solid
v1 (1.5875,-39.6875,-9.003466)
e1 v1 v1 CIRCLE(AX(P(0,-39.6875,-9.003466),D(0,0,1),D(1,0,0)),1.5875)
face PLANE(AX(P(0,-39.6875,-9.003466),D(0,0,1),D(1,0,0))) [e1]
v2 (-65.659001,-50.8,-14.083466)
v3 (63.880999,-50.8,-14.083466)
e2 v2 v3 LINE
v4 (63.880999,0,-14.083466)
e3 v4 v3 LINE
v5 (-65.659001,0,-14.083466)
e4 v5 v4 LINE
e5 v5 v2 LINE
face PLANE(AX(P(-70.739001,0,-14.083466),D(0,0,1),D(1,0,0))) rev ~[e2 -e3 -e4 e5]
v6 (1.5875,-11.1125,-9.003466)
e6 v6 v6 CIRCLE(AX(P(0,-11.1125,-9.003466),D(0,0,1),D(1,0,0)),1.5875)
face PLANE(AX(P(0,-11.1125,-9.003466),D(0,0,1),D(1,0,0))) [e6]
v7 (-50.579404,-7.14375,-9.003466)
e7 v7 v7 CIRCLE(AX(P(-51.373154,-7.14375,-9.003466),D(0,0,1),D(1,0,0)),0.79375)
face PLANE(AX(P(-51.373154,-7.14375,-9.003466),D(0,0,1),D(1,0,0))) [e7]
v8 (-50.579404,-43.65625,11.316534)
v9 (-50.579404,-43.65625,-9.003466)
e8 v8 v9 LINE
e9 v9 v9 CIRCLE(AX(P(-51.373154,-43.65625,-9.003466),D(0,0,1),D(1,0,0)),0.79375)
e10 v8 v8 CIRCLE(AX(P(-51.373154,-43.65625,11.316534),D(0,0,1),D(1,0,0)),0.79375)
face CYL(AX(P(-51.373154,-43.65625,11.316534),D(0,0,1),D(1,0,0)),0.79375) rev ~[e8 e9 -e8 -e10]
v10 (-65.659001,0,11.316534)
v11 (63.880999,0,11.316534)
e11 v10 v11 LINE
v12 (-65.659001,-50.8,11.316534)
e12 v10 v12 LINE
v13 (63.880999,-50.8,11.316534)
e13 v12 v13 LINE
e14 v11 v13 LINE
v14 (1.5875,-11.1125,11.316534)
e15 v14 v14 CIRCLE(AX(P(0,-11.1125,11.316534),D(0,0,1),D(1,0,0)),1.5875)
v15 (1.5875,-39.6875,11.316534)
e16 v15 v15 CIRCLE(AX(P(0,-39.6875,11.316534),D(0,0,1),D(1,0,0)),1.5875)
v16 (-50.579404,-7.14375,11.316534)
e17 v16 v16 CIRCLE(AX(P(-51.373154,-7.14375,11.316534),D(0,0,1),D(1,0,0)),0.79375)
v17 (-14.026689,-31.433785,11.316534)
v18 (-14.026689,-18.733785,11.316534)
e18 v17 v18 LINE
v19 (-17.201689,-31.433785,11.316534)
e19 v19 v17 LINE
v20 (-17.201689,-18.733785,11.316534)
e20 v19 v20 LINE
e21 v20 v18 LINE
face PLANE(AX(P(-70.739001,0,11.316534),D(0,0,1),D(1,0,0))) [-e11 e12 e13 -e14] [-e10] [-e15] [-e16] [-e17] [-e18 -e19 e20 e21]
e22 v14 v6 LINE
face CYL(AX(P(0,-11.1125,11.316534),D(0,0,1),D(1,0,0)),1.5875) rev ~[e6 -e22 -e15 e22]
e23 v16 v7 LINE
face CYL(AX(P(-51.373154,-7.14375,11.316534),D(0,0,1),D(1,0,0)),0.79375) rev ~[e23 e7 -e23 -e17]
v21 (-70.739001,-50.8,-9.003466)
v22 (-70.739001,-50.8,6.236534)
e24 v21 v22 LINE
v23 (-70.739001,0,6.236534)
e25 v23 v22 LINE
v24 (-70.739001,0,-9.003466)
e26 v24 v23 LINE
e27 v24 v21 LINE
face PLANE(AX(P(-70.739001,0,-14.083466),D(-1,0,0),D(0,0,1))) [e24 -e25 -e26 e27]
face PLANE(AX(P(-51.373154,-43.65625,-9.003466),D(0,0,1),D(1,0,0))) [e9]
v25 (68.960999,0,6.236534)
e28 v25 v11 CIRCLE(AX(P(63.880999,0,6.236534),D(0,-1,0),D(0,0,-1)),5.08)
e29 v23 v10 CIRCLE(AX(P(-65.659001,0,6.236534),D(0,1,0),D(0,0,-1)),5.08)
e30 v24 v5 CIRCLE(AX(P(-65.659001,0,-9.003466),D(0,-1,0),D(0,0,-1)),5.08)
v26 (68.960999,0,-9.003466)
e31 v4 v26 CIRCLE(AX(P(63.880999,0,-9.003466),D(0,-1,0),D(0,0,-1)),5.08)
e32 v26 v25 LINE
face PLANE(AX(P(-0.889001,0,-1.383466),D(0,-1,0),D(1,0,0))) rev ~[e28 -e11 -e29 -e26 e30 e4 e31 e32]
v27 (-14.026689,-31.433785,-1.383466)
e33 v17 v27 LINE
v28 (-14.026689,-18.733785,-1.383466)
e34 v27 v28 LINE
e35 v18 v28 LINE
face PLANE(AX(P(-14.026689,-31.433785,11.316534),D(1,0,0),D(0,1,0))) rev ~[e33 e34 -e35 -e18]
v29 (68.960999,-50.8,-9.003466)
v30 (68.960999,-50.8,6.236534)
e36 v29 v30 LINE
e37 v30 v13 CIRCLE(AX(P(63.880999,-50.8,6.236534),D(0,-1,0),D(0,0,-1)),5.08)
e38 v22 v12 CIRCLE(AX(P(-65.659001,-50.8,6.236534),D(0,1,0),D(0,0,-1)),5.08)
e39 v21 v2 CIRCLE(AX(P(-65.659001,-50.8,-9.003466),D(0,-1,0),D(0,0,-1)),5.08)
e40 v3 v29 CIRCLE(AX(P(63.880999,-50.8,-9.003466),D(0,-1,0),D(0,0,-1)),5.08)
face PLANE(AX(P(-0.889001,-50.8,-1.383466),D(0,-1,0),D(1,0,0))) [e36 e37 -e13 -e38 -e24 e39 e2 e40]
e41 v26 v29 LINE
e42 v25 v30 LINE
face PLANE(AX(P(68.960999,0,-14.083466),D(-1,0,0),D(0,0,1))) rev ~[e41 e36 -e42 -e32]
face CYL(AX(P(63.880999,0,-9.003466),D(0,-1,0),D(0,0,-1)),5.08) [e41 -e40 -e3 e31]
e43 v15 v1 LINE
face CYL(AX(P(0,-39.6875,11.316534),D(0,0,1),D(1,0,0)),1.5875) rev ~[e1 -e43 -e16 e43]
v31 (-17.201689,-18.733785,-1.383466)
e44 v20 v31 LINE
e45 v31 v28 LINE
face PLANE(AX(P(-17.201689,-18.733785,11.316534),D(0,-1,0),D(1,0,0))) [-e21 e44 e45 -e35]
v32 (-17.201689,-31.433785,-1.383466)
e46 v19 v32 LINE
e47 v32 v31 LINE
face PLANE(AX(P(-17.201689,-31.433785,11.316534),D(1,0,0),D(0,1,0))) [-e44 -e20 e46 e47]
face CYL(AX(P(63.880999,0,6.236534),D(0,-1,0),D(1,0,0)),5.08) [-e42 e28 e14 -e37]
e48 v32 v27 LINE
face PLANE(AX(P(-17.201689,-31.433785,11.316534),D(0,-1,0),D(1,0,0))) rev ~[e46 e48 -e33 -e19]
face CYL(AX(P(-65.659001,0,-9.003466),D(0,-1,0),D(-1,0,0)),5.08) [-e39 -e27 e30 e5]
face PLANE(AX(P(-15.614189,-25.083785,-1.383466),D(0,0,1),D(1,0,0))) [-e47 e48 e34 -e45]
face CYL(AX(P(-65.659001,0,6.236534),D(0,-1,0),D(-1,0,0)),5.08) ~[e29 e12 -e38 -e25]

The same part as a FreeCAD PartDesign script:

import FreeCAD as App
import Part
import Sketcher
from FreeCAD import Vector
Q = App.Units.Quantity


def edges_at(feature, points):
    """Names of the edges that pass closest to the given points."""
    edges = feature.Shape.Edges
    near = lambda p: min(range(len(edges)), key=lambda i: edges[i].distToShape(Part.Vertex(*p))[0])
    return sorted({f"Edge{near(p) + 1}" for p in points})


def add_polygon(sketch, points):
    """Adds a closed chain of lines whose ends are joined by coincident constraints."""
    first, n = sketch.GeometryCount, len(points)
    for a, b in zip(points, points[1:] + points[:1]):
        sketch.addGeometry(Part.LineSegment(App.Vector(*a, 0), App.Vector(*b, 0)), False)
    for i in range(n):
        sketch.addConstraint(Sketcher.Constraint("Coincident", first + i, 2, first + (i + 1) % n, 1))

doc = App.newDocument("Part")
params = doc.addObject("Spreadsheet::Sheet", "Params")
for row, (alias, value) in enumerate([
    ("sketch1_height", "1 in"),
    ("sketch1_width", "5.5 in"),
    ("pad1_length", "2 in"),
    ("fillet_radius", "0.2 in"),
    ("sketch2_diameter", "0.0625 in"),
    ("pocket1_length", "0.8 in"),
    ("sketch3_height", "0.5 in"),
    ("sketch3_width", "0.125 in"),
    ("pocket2_length", "0.5 in"),
    ("sketch4_diameter", "0.125 in"),
    ("pocket3_length", "0.8 in"),
], start=1):
    params.set(f"A{row}", alias)
    params.set(f"B{row}", "=" + value)
    params.setAlias(f"B{row}", alias)

body = doc.addObject("PartDesign::Body", "Body")

# Sketch on XZ plane
sketch1 = body.newObject("Sketcher::SketchObject", "Sketch")
sketch1.AttachmentSupport = (doc.getObject("XZ_Plane"), [""])
sketch1.MapMode = "FlatFace"
add_polygon(sketch1, [(-71, 11), (-71, -14), (69, -14), (69, 11)])  # lines 0-3
sketch1.addConstraint(Sketcher.Constraint("Vertical", 0))
sketch1.addConstraint(Sketcher.Constraint("Horizontal", 1))
sketch1.addConstraint(Sketcher.Constraint("Vertical", 2))
sketch1.addConstraint(Sketcher.Constraint("Horizontal", 3))
sketch1.addConstraint(Sketcher.Constraint("DistanceY", 0, 2, 0, 1, Q("1 in")))
sketch1.addConstraint(Sketcher.Constraint("DistanceX", 1, 1, 1, 2, Q("5.5 in")))
sketch1.addConstraint(Sketcher.Constraint("DistanceX", 0, 2, -1, 1, Q("2.785 in")))
sketch1.addConstraint(Sketcher.Constraint("DistanceY", 0, 2, -1, 1, 14.083466))
sketch1.setExpression("Constraints[8]", "Params.sketch1_height")
sketch1.setExpression("Constraints[9]", "Params.sketch1_width")
pad1 = body.newObject("PartDesign::Pad", "Pad")
pad1.Profile = sketch1
pad1.setExpression("Length", "Params.pad1_length")
doc.recompute()

fillet = body.newObject("PartDesign::Fillet", "Fillet")
fillet.Base = (pad1, edges_at(pad1, [
    (-70.739, -25.4, 11.317),
    (-70.739, -25.4, -14.083),
    (68.961, -25.4, 11.317),
    (68.961, -25.4, -14.083),
]))
fillet.setExpression("Radius", "Params.fillet_radius")

# Sketch on XY plane
sketch2 = body.newObject("Sketcher::SketchObject", "Sketch001")
sketch2.AttachmentSupport = (doc.getObject("XY_Plane"), [""])
sketch2.MapMode = "FlatFace"
sketch2.AttachmentOffset = App.Placement(Vector(0, 0, 11.316534), App.Rotation())
sketch2.addGeometry(Part.Circle(Vector(-51.4, -7.1, 0), Vector(0, 0, 1), 0.8), False)
sketch2.addGeometry(Part.Circle(Vector(-51.4, -43.7, 0), Vector(0, 0, 1), 0.8), False)
sketch2.addConstraint(Sketcher.Constraint("Equal", 0, 1))
sketch2.addConstraint(Sketcher.Constraint("Vertical", 0, 3, 1, 3))
sketch2.addConstraint(Sketcher.Constraint("Diameter", 0, Q("0.0625 in")))
sketch2.addConstraint(Sketcher.Constraint("DistanceY", 0, 3, -1, 1, Q("0.28125 in")))
sketch2.addConstraint(Sketcher.Constraint("DistanceY", 1, 3, -1, 1, Q("1.71875 in")))
sketch2.addConstraint(Sketcher.Constraint("DistanceX", 0, 3, -1, 1, 51.373154))
sketch2.setExpression("Constraints[2]", "Params.sketch2_diameter")
pocket1 = body.newObject("PartDesign::Pocket", "Pocket")
pocket1.Profile = sketch2
pocket1.setExpression("Length", "Params.pocket1_length")

# Sketch on XY plane
sketch3 = body.newObject("Sketcher::SketchObject", "Sketch002")
sketch3.AttachmentSupport = (doc.getObject("XY_Plane"), [""])
sketch3.MapMode = "FlatFace"
sketch3.AttachmentOffset = App.Placement(Vector(0, 0, 11.316534), App.Rotation())
add_polygon(sketch3, [(-17.2, -18.7), (-17.2, -31.4), (-14, -31.4), (-14, -18.7)])  # lines 0-3
sketch3.addConstraint(Sketcher.Constraint("Vertical", 0))
sketch3.addConstraint(Sketcher.Constraint("Horizontal", 1))
sketch3.addConstraint(Sketcher.Constraint("Vertical", 2))
sketch3.addConstraint(Sketcher.Constraint("Horizontal", 3))
sketch3.addConstraint(Sketcher.Constraint("DistanceY", 0, 2, 0, 1, Q("0.5 in")))
sketch3.addConstraint(Sketcher.Constraint("DistanceX", 1, 1, 1, 2, Q("0.125 in")))
sketch3.addConstraint(Sketcher.Constraint("DistanceX", 0, 2, -1, 1, 17.201689))
sketch3.addConstraint(Sketcher.Constraint("DistanceY", 0, 2, -1, 1, 31.433785))
sketch3.setExpression("Constraints[8]", "Params.sketch3_height")
sketch3.setExpression("Constraints[9]", "Params.sketch3_width")
pocket2 = body.newObject("PartDesign::Pocket", "Pocket001")
pocket2.Profile = sketch3
pocket2.setExpression("Length", "Params.pocket2_length")

# Sketch on XY plane
sketch4 = body.newObject("Sketcher::SketchObject", "Sketch003")
sketch4.AttachmentSupport = (doc.getObject("XY_Plane"), [""])
sketch4.MapMode = "FlatFace"
sketch4.AttachmentOffset = App.Placement(Vector(0, 0, 11.316534), App.Rotation())
sketch4.addGeometry(Part.Circle(Vector(0, -11.1, 0), Vector(0, 0, 1), 1.6), False)
sketch4.addGeometry(Part.Circle(Vector(0, -39.7, 0), Vector(0, 0, 1), 1.6), False)
sketch4.addConstraint(Sketcher.Constraint("Equal", 0, 1))
sketch4.addConstraint(Sketcher.Constraint("PointOnObject", 0, 3, -2))
sketch4.addConstraint(Sketcher.Constraint("PointOnObject", 1, 3, -2))
sketch4.addConstraint(Sketcher.Constraint("Diameter", 0, Q("0.125 in")))
sketch4.addConstraint(Sketcher.Constraint("DistanceY", 0, 3, -1, 1, Q("0.4375 in")))
sketch4.addConstraint(Sketcher.Constraint("DistanceY", 1, 3, -1, 1, Q("1.5625 in")))
sketch4.setExpression("Constraints[3]", "Params.sketch4_diameter")
pocket3 = body.newObject("PartDesign::Pocket", "Pocket002")
pocket3.Profile = sketch4
pocket3.setExpression("Length", "Params.pocket3_length")

doc.recompute()
